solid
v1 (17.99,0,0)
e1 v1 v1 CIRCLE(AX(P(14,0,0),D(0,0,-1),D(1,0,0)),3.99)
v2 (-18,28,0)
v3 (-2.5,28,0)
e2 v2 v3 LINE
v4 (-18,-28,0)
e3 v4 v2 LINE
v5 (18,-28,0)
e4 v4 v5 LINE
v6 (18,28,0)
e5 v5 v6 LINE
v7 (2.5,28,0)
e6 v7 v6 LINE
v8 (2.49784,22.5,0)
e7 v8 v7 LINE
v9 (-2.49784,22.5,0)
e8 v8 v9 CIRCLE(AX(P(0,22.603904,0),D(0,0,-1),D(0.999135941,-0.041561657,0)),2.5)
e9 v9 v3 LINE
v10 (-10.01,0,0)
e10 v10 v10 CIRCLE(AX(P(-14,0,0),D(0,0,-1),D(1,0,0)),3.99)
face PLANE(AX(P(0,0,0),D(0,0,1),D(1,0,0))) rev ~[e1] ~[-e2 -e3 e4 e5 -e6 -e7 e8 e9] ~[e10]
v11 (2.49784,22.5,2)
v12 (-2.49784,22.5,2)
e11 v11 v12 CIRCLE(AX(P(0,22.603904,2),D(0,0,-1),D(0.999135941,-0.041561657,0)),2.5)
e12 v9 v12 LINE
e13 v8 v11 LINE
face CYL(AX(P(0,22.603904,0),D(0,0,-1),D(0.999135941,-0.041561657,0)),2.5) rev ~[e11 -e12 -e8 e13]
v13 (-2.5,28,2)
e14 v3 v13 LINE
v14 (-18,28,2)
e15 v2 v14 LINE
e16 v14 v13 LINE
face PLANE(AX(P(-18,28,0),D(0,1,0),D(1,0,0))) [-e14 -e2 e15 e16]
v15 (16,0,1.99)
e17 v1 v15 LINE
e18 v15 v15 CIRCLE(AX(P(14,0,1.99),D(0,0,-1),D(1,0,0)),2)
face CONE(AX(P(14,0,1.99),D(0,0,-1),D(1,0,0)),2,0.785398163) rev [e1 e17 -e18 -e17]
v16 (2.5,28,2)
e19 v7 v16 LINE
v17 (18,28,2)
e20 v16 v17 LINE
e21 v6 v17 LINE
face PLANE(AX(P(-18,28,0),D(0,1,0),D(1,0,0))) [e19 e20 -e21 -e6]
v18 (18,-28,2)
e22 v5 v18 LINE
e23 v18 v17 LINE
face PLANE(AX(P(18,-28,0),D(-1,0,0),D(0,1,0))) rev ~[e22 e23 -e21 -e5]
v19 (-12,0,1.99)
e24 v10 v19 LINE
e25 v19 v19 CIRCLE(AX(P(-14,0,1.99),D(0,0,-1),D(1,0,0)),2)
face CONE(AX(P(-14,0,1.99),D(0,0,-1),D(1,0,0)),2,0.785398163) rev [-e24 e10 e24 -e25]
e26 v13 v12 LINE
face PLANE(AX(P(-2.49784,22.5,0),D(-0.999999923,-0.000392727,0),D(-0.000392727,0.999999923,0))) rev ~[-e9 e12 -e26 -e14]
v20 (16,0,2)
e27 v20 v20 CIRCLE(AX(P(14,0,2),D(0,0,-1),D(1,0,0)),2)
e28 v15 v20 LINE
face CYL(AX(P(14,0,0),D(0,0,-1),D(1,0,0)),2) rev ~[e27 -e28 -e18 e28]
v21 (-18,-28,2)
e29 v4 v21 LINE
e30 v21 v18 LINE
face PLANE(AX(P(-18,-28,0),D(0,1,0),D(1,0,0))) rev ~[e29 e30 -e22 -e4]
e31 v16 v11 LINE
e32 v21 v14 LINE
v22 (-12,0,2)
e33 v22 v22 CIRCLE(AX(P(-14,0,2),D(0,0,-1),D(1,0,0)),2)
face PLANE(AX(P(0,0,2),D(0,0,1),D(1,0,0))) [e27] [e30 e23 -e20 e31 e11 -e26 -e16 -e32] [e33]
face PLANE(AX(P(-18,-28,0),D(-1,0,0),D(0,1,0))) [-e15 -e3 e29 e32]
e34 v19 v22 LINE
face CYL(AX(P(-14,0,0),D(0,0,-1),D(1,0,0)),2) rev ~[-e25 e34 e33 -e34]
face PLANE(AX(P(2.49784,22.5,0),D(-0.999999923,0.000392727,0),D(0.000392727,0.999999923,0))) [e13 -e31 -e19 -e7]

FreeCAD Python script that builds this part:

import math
import FreeCAD as App
import Part
import Sketcher
Q = App.Units.Quantity


def edges_at(feature, points):
    """Names of the edges that pass closest to the given points."""
    edges = feature.Shape.Edges
    near = lambda p: min(range(len(edges)), key=lambda i: edges[i].distToShape(Part.Vertex(*p))[0])
    return sorted({f"Edge{near(p) + 1}" for p in points})

doc = App.newDocument("Part")
body = doc.addObject("PartDesign::Body", "Body")

# Sketch on XY plane
sketch1 = doc.addObject("Sketcher::SketchObject", "Sketch")
body.addObject(sketch1)
sketch1.AttachmentSupport = (doc.XY_Plane, [""])
sketch1.MapMode = "FlatFace"
sketch1.addGeometry([
    Part.LineSegment(App.Vector(-18, 28, 0), App.Vector(-18, -28, 0)),
    Part.LineSegment(App.Vector(-18, -28, 0), App.Vector(18, -28, 0)),
    Part.LineSegment(App.Vector(18, -28, 0), App.Vector(18, 28, 0)),
    Part.LineSegment(App.Vector(18, 28, 0), App.Vector(-18, 28, 0)),
], False)
sketch1.addConstraint([
    Sketcher.Constraint("Coincident", 0, 2, 1, 1),
    Sketcher.Constraint("Coincident", 1, 2, 2, 1),
    Sketcher.Constraint("Coincident", 2, 2, 3, 1),
    Sketcher.Constraint("Coincident", 3, 2, 0, 1),
    Sketcher.Constraint("Vertical", 0),
    Sketcher.Constraint("Horizontal", 1),
    Sketcher.Constraint("Vertical", 2),
    Sketcher.Constraint("Horizontal", 3),
    Sketcher.Constraint("Symmetric", 0, 2, 2, 2, -1, 1),
    Sketcher.Constraint("DistanceX", 1, 1, 1, 2, Q("36 mm")),
    Sketcher.Constraint("DistanceY", 0, 2, 0, 1, Q("56 mm")),
])
pad1 = doc.addObject("PartDesign::Pad", "Pad")
body.addObject(pad1)
pad1.Profile = sketch1
pad1.Length = 2

# Sketch on XY plane
sketch2 = doc.addObject("Sketcher::SketchObject", "Sketch001")
body.addObject(sketch2)
sketch2.AttachmentSupport = (doc.XY_Plane, [""])
sketch2.MapMode = "FlatFace"
sketch2.addGeometry([
    Part.Circle(App.Vector(14, 0, 0), App.Vector(0, 0, 1), 2),
    Part.Circle(App.Vector(-14, 0, 0), App.Vector(0, 0, 1), 2),
], False)
sketch2.addConstraint([
    Sketcher.Constraint("Equal", 0, 1),
    Sketcher.Constraint("Symmetric", 0, 3, 1, 3, -1, 1),
    Sketcher.Constraint("PointOnObject", 0, 3, -1),
    Sketcher.Constraint("Diameter", 0, Q("4 mm")),
    Sketcher.Constraint("DistanceX", -1, 1, 0, 3, Q("14 mm")),
])
pocket1 = doc.addObject("PartDesign::Pocket", "Pocket")
body.addObject(pocket1)
pocket1.Profile = sketch2
pocket1.Length = 3
pocket1.Reversed = True
doc.recompute()

chamfer = doc.addObject("PartDesign::Chamfer", "Chamfer")
body.addObject(chamfer)
chamfer.Base = (pocket1, edges_at(pocket1, [(-16, 0, 0), (12, 0, 0)]))
chamfer.Size = 1.99

# Sketch on XY plane
sketch3 = doc.addObject("Sketcher::SketchObject", "Sketch002")
body.addObject(sketch3)
sketch3.AttachmentSupport = (doc.XY_Plane, [""])
sketch3.MapMode = "FlatFace"
sketch3.addGeometry([
    Part.ArcOfCircle(Part.Circle(App.Vector(0, 22.603904, 0), App.Vector(0, 0, 1), 2.5), math.radians(-177.618006), math.radians(-2.381994)),
    Part.LineSegment(App.Vector(-2.49784, 22.5, 0), App.Vector(-2.5, 28, 0)),
    Part.LineSegment(App.Vector(-2.5, 28, 0), App.Vector(2.5, 28, 0)),
    Part.LineSegment(App.Vector(2.5, 28, 0), App.Vector(2.49784, 22.5, 0)),
], False)
sketch3.addConstraint([
    Sketcher.Constraint("Coincident", 0, 1, 1, 1),
    Sketcher.Constraint("Coincident", 1, 2, 2, 1),
    Sketcher.Constraint("Coincident", 2, 2, 3, 1),
    Sketcher.Constraint("Coincident", 3, 2, 0, 2),
    Sketcher.Constraint("Horizontal", 2),
    Sketcher.Constraint("Symmetric", 0, 1, 3, 2, -2),
    Sketcher.Constraint("Radius", 0, Q("2.5 mm")),
    Sketcher.Constraint("DistanceX", 2, 1, 2, 2, Q("5 mm")),
    Sketcher.Constraint("DistanceY", -1, 1, 1, 2, Q("28 mm")),
    Sketcher.Constraint("Distance", 1, Q("5.5 mm")),
    Sketcher.Constraint("DistanceX", 1, 2, -1, 1, Q("2.5 mm")),
    Sketcher.Constraint("DistanceX", 0, 1, -1, 1, Q("2.49784 mm")),
])
pocket2 = doc.addObject("PartDesign::Pocket", "Pocket001")
body.addObject(pocket2)
pocket2.Profile = sketch3
pocket2.Length = 3
pocket2.Reversed = True

doc.recompute()
